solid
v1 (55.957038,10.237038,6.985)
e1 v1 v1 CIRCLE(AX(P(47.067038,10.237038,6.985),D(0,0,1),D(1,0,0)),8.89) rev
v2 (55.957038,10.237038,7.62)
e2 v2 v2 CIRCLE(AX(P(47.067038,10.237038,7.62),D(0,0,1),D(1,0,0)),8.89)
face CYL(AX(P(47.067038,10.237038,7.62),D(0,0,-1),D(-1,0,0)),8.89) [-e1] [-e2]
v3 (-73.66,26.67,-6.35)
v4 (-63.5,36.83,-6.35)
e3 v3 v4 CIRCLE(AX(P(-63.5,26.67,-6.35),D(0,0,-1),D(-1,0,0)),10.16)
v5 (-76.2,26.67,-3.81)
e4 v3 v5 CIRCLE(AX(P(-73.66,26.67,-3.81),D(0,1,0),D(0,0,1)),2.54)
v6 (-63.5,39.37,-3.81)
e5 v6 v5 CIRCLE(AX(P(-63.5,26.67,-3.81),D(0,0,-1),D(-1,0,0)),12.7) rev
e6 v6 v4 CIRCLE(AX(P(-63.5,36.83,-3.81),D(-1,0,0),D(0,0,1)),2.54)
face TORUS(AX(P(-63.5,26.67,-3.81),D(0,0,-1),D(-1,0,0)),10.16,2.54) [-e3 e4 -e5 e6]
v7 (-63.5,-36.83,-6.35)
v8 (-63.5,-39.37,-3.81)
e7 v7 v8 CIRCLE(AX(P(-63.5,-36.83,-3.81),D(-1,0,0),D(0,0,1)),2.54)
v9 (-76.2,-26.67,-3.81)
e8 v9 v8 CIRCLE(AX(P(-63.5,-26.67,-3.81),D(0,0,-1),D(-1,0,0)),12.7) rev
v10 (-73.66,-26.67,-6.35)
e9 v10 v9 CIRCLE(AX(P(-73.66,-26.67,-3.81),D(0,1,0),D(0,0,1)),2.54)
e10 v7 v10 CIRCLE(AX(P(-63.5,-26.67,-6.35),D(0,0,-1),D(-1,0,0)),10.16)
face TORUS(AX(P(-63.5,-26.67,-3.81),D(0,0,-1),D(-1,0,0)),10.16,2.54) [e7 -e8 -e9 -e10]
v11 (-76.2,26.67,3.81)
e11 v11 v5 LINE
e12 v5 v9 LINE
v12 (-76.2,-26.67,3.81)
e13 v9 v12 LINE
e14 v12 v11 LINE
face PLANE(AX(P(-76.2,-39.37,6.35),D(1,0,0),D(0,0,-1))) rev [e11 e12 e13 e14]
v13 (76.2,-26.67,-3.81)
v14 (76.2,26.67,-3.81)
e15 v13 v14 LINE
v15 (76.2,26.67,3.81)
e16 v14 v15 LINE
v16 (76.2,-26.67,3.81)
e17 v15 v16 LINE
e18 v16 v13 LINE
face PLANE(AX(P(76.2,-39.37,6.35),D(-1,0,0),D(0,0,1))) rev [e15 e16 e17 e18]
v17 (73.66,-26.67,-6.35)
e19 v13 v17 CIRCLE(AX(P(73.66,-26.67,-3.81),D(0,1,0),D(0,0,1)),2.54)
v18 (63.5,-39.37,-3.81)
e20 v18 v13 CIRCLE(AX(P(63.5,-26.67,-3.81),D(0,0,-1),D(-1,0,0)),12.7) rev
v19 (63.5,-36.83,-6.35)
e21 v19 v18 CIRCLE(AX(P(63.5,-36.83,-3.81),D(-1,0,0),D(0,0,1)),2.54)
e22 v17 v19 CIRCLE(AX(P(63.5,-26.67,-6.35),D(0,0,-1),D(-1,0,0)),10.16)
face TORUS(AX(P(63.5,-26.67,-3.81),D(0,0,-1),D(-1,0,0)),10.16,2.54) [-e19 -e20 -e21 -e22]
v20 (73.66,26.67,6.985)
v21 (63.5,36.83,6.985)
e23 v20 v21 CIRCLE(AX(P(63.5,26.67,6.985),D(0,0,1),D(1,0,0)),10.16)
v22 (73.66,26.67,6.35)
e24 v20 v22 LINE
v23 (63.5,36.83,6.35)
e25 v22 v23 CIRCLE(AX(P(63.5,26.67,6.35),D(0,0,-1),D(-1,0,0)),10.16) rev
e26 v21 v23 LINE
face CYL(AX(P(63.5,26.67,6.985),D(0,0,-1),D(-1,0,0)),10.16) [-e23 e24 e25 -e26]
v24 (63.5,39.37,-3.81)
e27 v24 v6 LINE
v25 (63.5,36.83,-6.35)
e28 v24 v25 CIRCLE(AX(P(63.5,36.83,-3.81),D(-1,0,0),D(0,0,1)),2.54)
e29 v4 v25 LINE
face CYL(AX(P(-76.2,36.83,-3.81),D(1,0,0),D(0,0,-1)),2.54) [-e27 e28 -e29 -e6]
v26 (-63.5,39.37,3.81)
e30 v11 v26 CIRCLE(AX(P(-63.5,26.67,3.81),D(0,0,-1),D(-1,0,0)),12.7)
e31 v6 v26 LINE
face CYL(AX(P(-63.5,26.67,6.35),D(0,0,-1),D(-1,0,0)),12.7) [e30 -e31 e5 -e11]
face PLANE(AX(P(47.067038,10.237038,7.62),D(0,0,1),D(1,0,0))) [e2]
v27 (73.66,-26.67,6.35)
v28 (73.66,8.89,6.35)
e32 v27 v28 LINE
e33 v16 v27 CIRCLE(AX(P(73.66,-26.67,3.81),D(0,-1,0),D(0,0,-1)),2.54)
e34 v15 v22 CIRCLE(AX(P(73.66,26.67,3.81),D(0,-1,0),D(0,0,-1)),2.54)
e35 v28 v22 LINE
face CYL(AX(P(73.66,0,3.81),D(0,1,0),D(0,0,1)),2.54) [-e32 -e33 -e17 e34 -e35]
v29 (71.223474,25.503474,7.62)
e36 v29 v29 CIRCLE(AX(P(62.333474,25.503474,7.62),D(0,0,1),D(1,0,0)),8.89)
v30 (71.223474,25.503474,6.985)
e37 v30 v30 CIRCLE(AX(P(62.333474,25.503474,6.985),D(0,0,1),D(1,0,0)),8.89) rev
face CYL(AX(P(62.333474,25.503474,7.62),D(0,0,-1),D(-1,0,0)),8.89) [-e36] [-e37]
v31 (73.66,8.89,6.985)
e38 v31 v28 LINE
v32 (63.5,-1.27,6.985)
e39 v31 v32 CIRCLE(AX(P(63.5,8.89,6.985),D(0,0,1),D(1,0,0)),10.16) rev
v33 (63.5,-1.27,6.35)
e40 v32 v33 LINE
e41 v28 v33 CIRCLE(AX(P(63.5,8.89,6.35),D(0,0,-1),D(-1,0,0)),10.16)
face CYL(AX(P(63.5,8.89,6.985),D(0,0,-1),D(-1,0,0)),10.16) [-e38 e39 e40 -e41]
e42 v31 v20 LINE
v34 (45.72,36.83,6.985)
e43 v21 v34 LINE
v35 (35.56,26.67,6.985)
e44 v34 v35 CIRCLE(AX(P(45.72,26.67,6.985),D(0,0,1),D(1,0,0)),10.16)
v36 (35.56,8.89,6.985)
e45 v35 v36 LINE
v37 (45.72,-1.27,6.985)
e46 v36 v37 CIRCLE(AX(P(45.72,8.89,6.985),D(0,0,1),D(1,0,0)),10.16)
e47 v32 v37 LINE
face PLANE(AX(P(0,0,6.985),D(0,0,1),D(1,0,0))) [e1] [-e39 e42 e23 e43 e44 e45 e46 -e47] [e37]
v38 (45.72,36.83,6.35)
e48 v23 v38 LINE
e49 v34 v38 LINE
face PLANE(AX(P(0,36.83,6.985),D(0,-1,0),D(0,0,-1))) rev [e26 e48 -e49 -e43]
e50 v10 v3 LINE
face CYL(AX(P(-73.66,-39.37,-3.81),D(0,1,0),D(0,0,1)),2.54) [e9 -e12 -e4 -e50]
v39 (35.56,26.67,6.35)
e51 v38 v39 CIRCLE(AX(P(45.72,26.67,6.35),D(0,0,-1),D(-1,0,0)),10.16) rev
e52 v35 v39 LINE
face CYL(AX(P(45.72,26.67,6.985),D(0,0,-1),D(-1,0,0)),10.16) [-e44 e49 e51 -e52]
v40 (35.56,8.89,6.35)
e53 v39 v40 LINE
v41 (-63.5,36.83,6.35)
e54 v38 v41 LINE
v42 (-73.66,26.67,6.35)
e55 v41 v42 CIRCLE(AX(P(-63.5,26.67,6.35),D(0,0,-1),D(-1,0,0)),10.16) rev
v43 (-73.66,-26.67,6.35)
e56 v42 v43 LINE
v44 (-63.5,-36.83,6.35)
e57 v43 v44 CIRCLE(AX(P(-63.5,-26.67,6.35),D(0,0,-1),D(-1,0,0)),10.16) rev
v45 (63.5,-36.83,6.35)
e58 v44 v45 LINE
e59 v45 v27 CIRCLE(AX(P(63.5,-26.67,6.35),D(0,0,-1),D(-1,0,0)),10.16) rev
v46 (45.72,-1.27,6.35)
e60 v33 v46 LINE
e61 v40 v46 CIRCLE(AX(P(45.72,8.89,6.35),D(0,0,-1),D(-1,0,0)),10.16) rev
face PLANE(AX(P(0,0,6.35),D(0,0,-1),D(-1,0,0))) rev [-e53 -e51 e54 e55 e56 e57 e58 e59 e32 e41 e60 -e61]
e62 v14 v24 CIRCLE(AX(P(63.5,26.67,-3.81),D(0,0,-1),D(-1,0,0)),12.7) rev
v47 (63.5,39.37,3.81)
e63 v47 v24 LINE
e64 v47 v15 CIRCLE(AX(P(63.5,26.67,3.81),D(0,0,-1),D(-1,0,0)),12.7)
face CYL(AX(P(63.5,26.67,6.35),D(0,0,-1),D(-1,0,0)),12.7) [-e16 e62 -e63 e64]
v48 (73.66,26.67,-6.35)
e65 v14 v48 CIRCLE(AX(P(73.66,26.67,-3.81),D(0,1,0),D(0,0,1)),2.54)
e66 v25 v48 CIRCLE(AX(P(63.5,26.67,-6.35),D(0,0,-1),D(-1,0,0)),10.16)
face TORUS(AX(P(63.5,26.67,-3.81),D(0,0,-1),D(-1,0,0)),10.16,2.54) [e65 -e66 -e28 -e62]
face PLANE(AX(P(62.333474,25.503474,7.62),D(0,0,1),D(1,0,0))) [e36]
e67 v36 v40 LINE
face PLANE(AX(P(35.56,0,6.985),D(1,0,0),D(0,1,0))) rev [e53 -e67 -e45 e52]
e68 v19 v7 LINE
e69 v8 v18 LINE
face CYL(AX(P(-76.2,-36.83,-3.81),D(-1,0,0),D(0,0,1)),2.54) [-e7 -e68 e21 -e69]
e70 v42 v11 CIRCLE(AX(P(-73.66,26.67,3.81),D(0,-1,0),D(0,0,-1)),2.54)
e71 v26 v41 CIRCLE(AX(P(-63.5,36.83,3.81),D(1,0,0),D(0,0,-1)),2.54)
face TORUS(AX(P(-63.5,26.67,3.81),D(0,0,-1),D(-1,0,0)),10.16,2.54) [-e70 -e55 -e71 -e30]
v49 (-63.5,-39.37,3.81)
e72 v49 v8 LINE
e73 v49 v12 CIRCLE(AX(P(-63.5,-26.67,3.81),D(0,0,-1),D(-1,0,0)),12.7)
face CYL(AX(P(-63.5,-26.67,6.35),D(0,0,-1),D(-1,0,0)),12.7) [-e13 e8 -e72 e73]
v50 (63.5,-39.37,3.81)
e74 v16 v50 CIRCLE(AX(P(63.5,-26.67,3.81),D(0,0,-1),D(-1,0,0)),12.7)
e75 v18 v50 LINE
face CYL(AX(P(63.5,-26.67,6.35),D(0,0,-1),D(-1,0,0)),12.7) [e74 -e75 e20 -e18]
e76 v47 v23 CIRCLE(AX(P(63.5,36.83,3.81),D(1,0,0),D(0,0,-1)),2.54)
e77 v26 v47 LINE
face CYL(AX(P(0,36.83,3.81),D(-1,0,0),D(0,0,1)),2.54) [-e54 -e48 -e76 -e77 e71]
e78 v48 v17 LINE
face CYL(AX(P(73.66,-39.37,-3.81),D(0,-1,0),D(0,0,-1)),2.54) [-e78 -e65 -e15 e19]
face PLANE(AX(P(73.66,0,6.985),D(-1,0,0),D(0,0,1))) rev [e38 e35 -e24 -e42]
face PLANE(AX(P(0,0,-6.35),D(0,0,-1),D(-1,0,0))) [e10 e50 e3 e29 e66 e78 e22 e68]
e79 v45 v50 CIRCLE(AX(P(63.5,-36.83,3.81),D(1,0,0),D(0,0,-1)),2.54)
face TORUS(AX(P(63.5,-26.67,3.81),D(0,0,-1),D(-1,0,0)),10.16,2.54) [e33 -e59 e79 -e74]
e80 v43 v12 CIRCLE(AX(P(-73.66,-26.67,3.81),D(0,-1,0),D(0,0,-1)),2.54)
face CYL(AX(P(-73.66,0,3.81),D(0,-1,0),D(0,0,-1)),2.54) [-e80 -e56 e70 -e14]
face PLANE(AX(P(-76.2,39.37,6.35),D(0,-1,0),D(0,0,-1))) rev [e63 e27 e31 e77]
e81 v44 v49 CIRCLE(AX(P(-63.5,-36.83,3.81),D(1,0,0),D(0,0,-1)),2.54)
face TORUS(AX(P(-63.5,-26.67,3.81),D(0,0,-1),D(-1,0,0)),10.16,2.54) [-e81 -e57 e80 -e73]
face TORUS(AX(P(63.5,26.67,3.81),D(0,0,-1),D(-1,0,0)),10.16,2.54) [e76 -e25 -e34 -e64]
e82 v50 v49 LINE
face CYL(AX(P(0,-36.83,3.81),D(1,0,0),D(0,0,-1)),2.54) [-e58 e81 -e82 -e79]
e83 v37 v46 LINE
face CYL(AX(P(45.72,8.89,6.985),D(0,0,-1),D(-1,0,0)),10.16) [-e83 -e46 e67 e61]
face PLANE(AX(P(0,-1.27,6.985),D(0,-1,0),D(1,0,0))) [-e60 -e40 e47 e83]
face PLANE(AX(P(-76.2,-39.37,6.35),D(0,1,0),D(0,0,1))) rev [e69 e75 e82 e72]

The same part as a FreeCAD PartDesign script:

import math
import FreeCAD as App
import Part
import Sketcher
from FreeCAD import Vector
Q = App.Units.Quantity


def edges_at(feature, points):
    """Names of the edges that pass closest to the given points."""
    edges = feature.Shape.Edges
    near = lambda p: min(range(len(edges)), key=lambda i: edges[i].distToShape(Part.Vertex(*p))[0])
    return sorted({f"Edge{near(p) + 1}" for p in points})

doc = App.newDocument("Part")
params = doc.addObject("Spreadsheet::Sheet", "Params")
for row, (alias, value) in enumerate([
    ("sketch1_width", "6 in"),
    ("sketch1_height", "3.1 in"),
    ("pad1_length", "0.5 in"),
    ("fillet_radius", "0.5 in"),
    ("fillet2_radius", "0.1 in"),
    ("sketch2_radius", "0.4 in"),
    ("sketch2_width", "0.7 in"),
    ("pad2_length", "0.05 in"),
    ("sketch3_diameter", "0.7 in"),
    ("pad3_length", "0.05 in"),
], start=1):
    params.set(f"A{row}", alias)
    params.set(f"B{row}", "=" + value)
    params.setAlias(f"B{row}", alias)

body = doc.addObject("PartDesign::Body", "Body")

# Sketch on XY plane
sketch1 = body.newObject("Sketcher::SketchObject", "Sketch")
sketch1.AttachmentSupport = (doc.getObject("XY_Plane"), [""])
sketch1.MapMode = "FlatFace"
sketch1.addGeometry(Part.LineSegment(Vector(-76.2, 39.37, 0), Vector(-76.2, -39.37, 0)), False)
sketch1.addGeometry(Part.LineSegment(Vector(-76.2, -39.37, 0), Vector(76.2, -39.37, 0)), False)
sketch1.addGeometry(Part.LineSegment(Vector(76.2, -39.37, 0), Vector(76.2, 39.37, 0)), False)
sketch1.addGeometry(Part.LineSegment(Vector(76.2, 39.37, 0), Vector(-76.2, 39.37, 0)), False)
sketch1.addConstraint(Sketcher.Constraint("Coincident", 0, 2, 1, 1))
sketch1.addConstraint(Sketcher.Constraint("Coincident", 1, 2, 2, 1))
sketch1.addConstraint(Sketcher.Constraint("Coincident", 2, 2, 3, 1))
sketch1.addConstraint(Sketcher.Constraint("Coincident", 3, 2, 0, 1))
sketch1.addConstraint(Sketcher.Constraint("Vertical", 0))
sketch1.addConstraint(Sketcher.Constraint("Horizontal", 1))
sketch1.addConstraint(Sketcher.Constraint("Vertical", 2))
sketch1.addConstraint(Sketcher.Constraint("Horizontal", 3))
sketch1.addConstraint(Sketcher.Constraint("Symmetric", 0, 2, 2, 2, -1, 1))
sketch1.addConstraint(Sketcher.Constraint("DistanceX", 1, 1, 1, 2, Q("6 in")))
sketch1.addConstraint(Sketcher.Constraint("DistanceY", 0, 2, 0, 1, Q("3.1 in")))
sketch1.setExpression("Constraints[9]", "Params.sketch1_width")
sketch1.setExpression("Constraints[10]", "Params.sketch1_height")
pad1 = body.newObject("PartDesign::Pad", "Pad")
pad1.Profile = sketch1
pad1.setExpression("Length", "Params.pad1_length")
pad1.Midplane = True
doc.recompute()

fillet = body.newObject("PartDesign::Fillet", "Fillet")
fillet.Base = (pad1, edges_at(pad1, [
    (76.2, -39.37, 0),
    (-76.2, -39.37, 0),
    (-76.2, 39.37, 0),
    (76.2, 39.37, 0),
]))
fillet.setExpression("Radius", "Params.fillet_radius")
doc.recompute()

fillet2 = body.newObject("PartDesign::Fillet", "Fillet001")
fillet2.Base = (fillet, edges_at(fillet, [
    (0, 39.37, -6.35),
    (0, 39.37, 6.35),
    (76.2, 0, -6.35),
    (0, -39.37, -6.35),
    (-76.2, 0, -6.35),
    (-72.48, 35.65, -6.35),
    (-72.48, -35.65, -6.35),
    (72.48, -35.65, -6.35),
    (72.48, 35.65, -6.35),
    (76.2, 0, 6.35),
    (-76.2, 0, 6.35),
    (0, -39.37, 6.35),
    (-72.48, 35.65, 6.35),
    (-72.48, -35.65, 6.35),
    (72.48, -35.65, 6.35),
    (72.48, 35.65, 6.35),
]))
fillet2.setExpression("Radius", "Params.fillet2_radius")

# Sketch on XY plane
sketch2 = body.newObject("Sketcher::SketchObject", "Sketch001")
sketch2.AttachmentSupport = (doc.getObject("XY_Plane"), [""])
sketch2.MapMode = "FlatFace"
sketch2.AttachmentOffset = App.Placement(Vector(0, 0, 0.25 * 25.4), App.Rotation())
sketch2.addGeometry(Part.ArcOfCircle(Part.Circle(Vector(63.5, 26.67, 0), Vector(0, 0, 1), 10.16), math.radians(0), math.radians(90)), False)
sketch2.addGeometry(Part.LineSegment(Vector(63.5, 36.83, 0), Vector(45.72, 36.83, 0)), False)
sketch2.addGeometry(Part.ArcOfCircle(Part.Circle(Vector(45.72, 26.67, 0), Vector(0, 0, 1), 10.16), math.radians(90), math.radians(180)), False)
sketch2.addGeometry(Part.LineSegment(Vector(35.56, 26.67, 0), Vector(35.56, 8.89, 0)), False)
sketch2.addGeometry(Part.ArcOfCircle(Part.Circle(Vector(45.72, 8.89, 0), Vector(0, 0, 1), 10.16), math.radians(180), math.radians(270)), False)
sketch2.addGeometry(Part.LineSegment(Vector(45.72, -1.27, 0), Vector(63.5, -1.27, 0)), False)
sketch2.addGeometry(Part.ArcOfCircle(Part.Circle(Vector(63.5, 8.89, 0), Vector(0, 0, 1), 10.16), math.radians(-90), math.radians(0)), False)
sketch2.addGeometry(Part.LineSegment(Vector(73.66, 8.89, 0), Vector(73.66, 26.67, 0)), False)
sketch2.addConstraint(Sketcher.Constraint("Tangent", 0, 2, 1, 1))
sketch2.addConstraint(Sketcher.Constraint("Tangent", 1, 2, 2, 1))
sketch2.addConstraint(Sketcher.Constraint("Tangent", 2, 2, 3, 1))
sketch2.addConstraint(Sketcher.Constraint("Tangent", 3, 2, 4, 1))
sketch2.addConstraint(Sketcher.Constraint("Tangent", 4, 2, 5, 1))
sketch2.addConstraint(Sketcher.Constraint("Tangent", 5, 2, 6, 1))
sketch2.addConstraint(Sketcher.Constraint("Tangent", 6, 2, 7, 1))
sketch2.addConstraint(Sketcher.Constraint("Tangent", 7, 2, 0, 1))
sketch2.addConstraint(Sketcher.Constraint("Horizontal", 1))
sketch2.addConstraint(Sketcher.Constraint("Vertical", 3))
sketch2.addConstraint(Sketcher.Constraint("Horizontal", 5))
sketch2.addConstraint(Sketcher.Constraint("Vertical", 7))
sketch2.addConstraint(Sketcher.Constraint("Equal", 0, 2))
sketch2.addConstraint(Sketcher.Constraint("Equal", 2, 4))
sketch2.addConstraint(Sketcher.Constraint("Equal", 4, 6))
sketch2.addConstraint(Sketcher.Constraint("Equal", 5, 3))
sketch2.addConstraint(Sketcher.Constraint("Radius", 0, Q("0.4 in")))
sketch2.addConstraint(Sketcher.Constraint("DistanceX", 1, 2, 1, 1, Q("0.7 in")))
sketch2.addConstraint(Sketcher.Constraint("DistanceX", -1, 1, 0, 3, Q("2.5 in")))
sketch2.addConstraint(Sketcher.Constraint("DistanceY", -1, 1, 0, 3, Q("1.05 in")))
sketch2.setExpression("Constraints[16]", "Params.sketch2_radius")
sketch2.setExpression("Constraints[17]", "Params.sketch2_width")
pad2 = body.newObject("PartDesign::Pad", "Pad001")
pad2.Profile = sketch2
pad2.setExpression("Length", "Params.pad2_length")
pad2.Midplane = True

# Sketch on XY plane
sketch3 = body.newObject("Sketcher::SketchObject", "Sketch002")
sketch3.AttachmentSupport = (doc.getObject("XY_Plane"), [""])
sketch3.MapMode = "FlatFace"
sketch3.AttachmentOffset = App.Placement(Vector(0, 0, 0.275 * 25.4), App.Rotation())
sketch3.addGeometry(Part.Circle(Vector(62.333474, 25.503474, 0), Vector(0, 0, 1), 8.89), False)
sketch3.addGeometry(Part.Circle(Vector(47.067038, 10.237038, 0), Vector(0, 0, 1), 8.89), False)
sketch3.addConstraint(Sketcher.Constraint("Equal", 0, 1))
sketch3.addConstraint(Sketcher.Constraint("Diameter", 0, Q("0.7 in")))
sketch3.addConstraint(Sketcher.Constraint("DistanceX", -1, 1, 1, 3, 47.067038))
sketch3.addConstraint(Sketcher.Constraint("DistanceY", -1, 1, 1, 3, 10.237038))
sketch3.addConstraint(Sketcher.Constraint("DistanceX", -1, 1, 0, 3, 62.333474))
sketch3.addConstraint(Sketcher.Constraint("DistanceY", -1, 1, 0, 3, 25.503474))
sketch3.setExpression("Constraints[1]", "Params.sketch3_diameter")
pad3 = body.newObject("PartDesign::Pad", "Pad002")
pad3.Profile = sketch3
pad3.setExpression("Length", "Params.pad3_length")
pad3.Midplane = True

doc.recompute()
